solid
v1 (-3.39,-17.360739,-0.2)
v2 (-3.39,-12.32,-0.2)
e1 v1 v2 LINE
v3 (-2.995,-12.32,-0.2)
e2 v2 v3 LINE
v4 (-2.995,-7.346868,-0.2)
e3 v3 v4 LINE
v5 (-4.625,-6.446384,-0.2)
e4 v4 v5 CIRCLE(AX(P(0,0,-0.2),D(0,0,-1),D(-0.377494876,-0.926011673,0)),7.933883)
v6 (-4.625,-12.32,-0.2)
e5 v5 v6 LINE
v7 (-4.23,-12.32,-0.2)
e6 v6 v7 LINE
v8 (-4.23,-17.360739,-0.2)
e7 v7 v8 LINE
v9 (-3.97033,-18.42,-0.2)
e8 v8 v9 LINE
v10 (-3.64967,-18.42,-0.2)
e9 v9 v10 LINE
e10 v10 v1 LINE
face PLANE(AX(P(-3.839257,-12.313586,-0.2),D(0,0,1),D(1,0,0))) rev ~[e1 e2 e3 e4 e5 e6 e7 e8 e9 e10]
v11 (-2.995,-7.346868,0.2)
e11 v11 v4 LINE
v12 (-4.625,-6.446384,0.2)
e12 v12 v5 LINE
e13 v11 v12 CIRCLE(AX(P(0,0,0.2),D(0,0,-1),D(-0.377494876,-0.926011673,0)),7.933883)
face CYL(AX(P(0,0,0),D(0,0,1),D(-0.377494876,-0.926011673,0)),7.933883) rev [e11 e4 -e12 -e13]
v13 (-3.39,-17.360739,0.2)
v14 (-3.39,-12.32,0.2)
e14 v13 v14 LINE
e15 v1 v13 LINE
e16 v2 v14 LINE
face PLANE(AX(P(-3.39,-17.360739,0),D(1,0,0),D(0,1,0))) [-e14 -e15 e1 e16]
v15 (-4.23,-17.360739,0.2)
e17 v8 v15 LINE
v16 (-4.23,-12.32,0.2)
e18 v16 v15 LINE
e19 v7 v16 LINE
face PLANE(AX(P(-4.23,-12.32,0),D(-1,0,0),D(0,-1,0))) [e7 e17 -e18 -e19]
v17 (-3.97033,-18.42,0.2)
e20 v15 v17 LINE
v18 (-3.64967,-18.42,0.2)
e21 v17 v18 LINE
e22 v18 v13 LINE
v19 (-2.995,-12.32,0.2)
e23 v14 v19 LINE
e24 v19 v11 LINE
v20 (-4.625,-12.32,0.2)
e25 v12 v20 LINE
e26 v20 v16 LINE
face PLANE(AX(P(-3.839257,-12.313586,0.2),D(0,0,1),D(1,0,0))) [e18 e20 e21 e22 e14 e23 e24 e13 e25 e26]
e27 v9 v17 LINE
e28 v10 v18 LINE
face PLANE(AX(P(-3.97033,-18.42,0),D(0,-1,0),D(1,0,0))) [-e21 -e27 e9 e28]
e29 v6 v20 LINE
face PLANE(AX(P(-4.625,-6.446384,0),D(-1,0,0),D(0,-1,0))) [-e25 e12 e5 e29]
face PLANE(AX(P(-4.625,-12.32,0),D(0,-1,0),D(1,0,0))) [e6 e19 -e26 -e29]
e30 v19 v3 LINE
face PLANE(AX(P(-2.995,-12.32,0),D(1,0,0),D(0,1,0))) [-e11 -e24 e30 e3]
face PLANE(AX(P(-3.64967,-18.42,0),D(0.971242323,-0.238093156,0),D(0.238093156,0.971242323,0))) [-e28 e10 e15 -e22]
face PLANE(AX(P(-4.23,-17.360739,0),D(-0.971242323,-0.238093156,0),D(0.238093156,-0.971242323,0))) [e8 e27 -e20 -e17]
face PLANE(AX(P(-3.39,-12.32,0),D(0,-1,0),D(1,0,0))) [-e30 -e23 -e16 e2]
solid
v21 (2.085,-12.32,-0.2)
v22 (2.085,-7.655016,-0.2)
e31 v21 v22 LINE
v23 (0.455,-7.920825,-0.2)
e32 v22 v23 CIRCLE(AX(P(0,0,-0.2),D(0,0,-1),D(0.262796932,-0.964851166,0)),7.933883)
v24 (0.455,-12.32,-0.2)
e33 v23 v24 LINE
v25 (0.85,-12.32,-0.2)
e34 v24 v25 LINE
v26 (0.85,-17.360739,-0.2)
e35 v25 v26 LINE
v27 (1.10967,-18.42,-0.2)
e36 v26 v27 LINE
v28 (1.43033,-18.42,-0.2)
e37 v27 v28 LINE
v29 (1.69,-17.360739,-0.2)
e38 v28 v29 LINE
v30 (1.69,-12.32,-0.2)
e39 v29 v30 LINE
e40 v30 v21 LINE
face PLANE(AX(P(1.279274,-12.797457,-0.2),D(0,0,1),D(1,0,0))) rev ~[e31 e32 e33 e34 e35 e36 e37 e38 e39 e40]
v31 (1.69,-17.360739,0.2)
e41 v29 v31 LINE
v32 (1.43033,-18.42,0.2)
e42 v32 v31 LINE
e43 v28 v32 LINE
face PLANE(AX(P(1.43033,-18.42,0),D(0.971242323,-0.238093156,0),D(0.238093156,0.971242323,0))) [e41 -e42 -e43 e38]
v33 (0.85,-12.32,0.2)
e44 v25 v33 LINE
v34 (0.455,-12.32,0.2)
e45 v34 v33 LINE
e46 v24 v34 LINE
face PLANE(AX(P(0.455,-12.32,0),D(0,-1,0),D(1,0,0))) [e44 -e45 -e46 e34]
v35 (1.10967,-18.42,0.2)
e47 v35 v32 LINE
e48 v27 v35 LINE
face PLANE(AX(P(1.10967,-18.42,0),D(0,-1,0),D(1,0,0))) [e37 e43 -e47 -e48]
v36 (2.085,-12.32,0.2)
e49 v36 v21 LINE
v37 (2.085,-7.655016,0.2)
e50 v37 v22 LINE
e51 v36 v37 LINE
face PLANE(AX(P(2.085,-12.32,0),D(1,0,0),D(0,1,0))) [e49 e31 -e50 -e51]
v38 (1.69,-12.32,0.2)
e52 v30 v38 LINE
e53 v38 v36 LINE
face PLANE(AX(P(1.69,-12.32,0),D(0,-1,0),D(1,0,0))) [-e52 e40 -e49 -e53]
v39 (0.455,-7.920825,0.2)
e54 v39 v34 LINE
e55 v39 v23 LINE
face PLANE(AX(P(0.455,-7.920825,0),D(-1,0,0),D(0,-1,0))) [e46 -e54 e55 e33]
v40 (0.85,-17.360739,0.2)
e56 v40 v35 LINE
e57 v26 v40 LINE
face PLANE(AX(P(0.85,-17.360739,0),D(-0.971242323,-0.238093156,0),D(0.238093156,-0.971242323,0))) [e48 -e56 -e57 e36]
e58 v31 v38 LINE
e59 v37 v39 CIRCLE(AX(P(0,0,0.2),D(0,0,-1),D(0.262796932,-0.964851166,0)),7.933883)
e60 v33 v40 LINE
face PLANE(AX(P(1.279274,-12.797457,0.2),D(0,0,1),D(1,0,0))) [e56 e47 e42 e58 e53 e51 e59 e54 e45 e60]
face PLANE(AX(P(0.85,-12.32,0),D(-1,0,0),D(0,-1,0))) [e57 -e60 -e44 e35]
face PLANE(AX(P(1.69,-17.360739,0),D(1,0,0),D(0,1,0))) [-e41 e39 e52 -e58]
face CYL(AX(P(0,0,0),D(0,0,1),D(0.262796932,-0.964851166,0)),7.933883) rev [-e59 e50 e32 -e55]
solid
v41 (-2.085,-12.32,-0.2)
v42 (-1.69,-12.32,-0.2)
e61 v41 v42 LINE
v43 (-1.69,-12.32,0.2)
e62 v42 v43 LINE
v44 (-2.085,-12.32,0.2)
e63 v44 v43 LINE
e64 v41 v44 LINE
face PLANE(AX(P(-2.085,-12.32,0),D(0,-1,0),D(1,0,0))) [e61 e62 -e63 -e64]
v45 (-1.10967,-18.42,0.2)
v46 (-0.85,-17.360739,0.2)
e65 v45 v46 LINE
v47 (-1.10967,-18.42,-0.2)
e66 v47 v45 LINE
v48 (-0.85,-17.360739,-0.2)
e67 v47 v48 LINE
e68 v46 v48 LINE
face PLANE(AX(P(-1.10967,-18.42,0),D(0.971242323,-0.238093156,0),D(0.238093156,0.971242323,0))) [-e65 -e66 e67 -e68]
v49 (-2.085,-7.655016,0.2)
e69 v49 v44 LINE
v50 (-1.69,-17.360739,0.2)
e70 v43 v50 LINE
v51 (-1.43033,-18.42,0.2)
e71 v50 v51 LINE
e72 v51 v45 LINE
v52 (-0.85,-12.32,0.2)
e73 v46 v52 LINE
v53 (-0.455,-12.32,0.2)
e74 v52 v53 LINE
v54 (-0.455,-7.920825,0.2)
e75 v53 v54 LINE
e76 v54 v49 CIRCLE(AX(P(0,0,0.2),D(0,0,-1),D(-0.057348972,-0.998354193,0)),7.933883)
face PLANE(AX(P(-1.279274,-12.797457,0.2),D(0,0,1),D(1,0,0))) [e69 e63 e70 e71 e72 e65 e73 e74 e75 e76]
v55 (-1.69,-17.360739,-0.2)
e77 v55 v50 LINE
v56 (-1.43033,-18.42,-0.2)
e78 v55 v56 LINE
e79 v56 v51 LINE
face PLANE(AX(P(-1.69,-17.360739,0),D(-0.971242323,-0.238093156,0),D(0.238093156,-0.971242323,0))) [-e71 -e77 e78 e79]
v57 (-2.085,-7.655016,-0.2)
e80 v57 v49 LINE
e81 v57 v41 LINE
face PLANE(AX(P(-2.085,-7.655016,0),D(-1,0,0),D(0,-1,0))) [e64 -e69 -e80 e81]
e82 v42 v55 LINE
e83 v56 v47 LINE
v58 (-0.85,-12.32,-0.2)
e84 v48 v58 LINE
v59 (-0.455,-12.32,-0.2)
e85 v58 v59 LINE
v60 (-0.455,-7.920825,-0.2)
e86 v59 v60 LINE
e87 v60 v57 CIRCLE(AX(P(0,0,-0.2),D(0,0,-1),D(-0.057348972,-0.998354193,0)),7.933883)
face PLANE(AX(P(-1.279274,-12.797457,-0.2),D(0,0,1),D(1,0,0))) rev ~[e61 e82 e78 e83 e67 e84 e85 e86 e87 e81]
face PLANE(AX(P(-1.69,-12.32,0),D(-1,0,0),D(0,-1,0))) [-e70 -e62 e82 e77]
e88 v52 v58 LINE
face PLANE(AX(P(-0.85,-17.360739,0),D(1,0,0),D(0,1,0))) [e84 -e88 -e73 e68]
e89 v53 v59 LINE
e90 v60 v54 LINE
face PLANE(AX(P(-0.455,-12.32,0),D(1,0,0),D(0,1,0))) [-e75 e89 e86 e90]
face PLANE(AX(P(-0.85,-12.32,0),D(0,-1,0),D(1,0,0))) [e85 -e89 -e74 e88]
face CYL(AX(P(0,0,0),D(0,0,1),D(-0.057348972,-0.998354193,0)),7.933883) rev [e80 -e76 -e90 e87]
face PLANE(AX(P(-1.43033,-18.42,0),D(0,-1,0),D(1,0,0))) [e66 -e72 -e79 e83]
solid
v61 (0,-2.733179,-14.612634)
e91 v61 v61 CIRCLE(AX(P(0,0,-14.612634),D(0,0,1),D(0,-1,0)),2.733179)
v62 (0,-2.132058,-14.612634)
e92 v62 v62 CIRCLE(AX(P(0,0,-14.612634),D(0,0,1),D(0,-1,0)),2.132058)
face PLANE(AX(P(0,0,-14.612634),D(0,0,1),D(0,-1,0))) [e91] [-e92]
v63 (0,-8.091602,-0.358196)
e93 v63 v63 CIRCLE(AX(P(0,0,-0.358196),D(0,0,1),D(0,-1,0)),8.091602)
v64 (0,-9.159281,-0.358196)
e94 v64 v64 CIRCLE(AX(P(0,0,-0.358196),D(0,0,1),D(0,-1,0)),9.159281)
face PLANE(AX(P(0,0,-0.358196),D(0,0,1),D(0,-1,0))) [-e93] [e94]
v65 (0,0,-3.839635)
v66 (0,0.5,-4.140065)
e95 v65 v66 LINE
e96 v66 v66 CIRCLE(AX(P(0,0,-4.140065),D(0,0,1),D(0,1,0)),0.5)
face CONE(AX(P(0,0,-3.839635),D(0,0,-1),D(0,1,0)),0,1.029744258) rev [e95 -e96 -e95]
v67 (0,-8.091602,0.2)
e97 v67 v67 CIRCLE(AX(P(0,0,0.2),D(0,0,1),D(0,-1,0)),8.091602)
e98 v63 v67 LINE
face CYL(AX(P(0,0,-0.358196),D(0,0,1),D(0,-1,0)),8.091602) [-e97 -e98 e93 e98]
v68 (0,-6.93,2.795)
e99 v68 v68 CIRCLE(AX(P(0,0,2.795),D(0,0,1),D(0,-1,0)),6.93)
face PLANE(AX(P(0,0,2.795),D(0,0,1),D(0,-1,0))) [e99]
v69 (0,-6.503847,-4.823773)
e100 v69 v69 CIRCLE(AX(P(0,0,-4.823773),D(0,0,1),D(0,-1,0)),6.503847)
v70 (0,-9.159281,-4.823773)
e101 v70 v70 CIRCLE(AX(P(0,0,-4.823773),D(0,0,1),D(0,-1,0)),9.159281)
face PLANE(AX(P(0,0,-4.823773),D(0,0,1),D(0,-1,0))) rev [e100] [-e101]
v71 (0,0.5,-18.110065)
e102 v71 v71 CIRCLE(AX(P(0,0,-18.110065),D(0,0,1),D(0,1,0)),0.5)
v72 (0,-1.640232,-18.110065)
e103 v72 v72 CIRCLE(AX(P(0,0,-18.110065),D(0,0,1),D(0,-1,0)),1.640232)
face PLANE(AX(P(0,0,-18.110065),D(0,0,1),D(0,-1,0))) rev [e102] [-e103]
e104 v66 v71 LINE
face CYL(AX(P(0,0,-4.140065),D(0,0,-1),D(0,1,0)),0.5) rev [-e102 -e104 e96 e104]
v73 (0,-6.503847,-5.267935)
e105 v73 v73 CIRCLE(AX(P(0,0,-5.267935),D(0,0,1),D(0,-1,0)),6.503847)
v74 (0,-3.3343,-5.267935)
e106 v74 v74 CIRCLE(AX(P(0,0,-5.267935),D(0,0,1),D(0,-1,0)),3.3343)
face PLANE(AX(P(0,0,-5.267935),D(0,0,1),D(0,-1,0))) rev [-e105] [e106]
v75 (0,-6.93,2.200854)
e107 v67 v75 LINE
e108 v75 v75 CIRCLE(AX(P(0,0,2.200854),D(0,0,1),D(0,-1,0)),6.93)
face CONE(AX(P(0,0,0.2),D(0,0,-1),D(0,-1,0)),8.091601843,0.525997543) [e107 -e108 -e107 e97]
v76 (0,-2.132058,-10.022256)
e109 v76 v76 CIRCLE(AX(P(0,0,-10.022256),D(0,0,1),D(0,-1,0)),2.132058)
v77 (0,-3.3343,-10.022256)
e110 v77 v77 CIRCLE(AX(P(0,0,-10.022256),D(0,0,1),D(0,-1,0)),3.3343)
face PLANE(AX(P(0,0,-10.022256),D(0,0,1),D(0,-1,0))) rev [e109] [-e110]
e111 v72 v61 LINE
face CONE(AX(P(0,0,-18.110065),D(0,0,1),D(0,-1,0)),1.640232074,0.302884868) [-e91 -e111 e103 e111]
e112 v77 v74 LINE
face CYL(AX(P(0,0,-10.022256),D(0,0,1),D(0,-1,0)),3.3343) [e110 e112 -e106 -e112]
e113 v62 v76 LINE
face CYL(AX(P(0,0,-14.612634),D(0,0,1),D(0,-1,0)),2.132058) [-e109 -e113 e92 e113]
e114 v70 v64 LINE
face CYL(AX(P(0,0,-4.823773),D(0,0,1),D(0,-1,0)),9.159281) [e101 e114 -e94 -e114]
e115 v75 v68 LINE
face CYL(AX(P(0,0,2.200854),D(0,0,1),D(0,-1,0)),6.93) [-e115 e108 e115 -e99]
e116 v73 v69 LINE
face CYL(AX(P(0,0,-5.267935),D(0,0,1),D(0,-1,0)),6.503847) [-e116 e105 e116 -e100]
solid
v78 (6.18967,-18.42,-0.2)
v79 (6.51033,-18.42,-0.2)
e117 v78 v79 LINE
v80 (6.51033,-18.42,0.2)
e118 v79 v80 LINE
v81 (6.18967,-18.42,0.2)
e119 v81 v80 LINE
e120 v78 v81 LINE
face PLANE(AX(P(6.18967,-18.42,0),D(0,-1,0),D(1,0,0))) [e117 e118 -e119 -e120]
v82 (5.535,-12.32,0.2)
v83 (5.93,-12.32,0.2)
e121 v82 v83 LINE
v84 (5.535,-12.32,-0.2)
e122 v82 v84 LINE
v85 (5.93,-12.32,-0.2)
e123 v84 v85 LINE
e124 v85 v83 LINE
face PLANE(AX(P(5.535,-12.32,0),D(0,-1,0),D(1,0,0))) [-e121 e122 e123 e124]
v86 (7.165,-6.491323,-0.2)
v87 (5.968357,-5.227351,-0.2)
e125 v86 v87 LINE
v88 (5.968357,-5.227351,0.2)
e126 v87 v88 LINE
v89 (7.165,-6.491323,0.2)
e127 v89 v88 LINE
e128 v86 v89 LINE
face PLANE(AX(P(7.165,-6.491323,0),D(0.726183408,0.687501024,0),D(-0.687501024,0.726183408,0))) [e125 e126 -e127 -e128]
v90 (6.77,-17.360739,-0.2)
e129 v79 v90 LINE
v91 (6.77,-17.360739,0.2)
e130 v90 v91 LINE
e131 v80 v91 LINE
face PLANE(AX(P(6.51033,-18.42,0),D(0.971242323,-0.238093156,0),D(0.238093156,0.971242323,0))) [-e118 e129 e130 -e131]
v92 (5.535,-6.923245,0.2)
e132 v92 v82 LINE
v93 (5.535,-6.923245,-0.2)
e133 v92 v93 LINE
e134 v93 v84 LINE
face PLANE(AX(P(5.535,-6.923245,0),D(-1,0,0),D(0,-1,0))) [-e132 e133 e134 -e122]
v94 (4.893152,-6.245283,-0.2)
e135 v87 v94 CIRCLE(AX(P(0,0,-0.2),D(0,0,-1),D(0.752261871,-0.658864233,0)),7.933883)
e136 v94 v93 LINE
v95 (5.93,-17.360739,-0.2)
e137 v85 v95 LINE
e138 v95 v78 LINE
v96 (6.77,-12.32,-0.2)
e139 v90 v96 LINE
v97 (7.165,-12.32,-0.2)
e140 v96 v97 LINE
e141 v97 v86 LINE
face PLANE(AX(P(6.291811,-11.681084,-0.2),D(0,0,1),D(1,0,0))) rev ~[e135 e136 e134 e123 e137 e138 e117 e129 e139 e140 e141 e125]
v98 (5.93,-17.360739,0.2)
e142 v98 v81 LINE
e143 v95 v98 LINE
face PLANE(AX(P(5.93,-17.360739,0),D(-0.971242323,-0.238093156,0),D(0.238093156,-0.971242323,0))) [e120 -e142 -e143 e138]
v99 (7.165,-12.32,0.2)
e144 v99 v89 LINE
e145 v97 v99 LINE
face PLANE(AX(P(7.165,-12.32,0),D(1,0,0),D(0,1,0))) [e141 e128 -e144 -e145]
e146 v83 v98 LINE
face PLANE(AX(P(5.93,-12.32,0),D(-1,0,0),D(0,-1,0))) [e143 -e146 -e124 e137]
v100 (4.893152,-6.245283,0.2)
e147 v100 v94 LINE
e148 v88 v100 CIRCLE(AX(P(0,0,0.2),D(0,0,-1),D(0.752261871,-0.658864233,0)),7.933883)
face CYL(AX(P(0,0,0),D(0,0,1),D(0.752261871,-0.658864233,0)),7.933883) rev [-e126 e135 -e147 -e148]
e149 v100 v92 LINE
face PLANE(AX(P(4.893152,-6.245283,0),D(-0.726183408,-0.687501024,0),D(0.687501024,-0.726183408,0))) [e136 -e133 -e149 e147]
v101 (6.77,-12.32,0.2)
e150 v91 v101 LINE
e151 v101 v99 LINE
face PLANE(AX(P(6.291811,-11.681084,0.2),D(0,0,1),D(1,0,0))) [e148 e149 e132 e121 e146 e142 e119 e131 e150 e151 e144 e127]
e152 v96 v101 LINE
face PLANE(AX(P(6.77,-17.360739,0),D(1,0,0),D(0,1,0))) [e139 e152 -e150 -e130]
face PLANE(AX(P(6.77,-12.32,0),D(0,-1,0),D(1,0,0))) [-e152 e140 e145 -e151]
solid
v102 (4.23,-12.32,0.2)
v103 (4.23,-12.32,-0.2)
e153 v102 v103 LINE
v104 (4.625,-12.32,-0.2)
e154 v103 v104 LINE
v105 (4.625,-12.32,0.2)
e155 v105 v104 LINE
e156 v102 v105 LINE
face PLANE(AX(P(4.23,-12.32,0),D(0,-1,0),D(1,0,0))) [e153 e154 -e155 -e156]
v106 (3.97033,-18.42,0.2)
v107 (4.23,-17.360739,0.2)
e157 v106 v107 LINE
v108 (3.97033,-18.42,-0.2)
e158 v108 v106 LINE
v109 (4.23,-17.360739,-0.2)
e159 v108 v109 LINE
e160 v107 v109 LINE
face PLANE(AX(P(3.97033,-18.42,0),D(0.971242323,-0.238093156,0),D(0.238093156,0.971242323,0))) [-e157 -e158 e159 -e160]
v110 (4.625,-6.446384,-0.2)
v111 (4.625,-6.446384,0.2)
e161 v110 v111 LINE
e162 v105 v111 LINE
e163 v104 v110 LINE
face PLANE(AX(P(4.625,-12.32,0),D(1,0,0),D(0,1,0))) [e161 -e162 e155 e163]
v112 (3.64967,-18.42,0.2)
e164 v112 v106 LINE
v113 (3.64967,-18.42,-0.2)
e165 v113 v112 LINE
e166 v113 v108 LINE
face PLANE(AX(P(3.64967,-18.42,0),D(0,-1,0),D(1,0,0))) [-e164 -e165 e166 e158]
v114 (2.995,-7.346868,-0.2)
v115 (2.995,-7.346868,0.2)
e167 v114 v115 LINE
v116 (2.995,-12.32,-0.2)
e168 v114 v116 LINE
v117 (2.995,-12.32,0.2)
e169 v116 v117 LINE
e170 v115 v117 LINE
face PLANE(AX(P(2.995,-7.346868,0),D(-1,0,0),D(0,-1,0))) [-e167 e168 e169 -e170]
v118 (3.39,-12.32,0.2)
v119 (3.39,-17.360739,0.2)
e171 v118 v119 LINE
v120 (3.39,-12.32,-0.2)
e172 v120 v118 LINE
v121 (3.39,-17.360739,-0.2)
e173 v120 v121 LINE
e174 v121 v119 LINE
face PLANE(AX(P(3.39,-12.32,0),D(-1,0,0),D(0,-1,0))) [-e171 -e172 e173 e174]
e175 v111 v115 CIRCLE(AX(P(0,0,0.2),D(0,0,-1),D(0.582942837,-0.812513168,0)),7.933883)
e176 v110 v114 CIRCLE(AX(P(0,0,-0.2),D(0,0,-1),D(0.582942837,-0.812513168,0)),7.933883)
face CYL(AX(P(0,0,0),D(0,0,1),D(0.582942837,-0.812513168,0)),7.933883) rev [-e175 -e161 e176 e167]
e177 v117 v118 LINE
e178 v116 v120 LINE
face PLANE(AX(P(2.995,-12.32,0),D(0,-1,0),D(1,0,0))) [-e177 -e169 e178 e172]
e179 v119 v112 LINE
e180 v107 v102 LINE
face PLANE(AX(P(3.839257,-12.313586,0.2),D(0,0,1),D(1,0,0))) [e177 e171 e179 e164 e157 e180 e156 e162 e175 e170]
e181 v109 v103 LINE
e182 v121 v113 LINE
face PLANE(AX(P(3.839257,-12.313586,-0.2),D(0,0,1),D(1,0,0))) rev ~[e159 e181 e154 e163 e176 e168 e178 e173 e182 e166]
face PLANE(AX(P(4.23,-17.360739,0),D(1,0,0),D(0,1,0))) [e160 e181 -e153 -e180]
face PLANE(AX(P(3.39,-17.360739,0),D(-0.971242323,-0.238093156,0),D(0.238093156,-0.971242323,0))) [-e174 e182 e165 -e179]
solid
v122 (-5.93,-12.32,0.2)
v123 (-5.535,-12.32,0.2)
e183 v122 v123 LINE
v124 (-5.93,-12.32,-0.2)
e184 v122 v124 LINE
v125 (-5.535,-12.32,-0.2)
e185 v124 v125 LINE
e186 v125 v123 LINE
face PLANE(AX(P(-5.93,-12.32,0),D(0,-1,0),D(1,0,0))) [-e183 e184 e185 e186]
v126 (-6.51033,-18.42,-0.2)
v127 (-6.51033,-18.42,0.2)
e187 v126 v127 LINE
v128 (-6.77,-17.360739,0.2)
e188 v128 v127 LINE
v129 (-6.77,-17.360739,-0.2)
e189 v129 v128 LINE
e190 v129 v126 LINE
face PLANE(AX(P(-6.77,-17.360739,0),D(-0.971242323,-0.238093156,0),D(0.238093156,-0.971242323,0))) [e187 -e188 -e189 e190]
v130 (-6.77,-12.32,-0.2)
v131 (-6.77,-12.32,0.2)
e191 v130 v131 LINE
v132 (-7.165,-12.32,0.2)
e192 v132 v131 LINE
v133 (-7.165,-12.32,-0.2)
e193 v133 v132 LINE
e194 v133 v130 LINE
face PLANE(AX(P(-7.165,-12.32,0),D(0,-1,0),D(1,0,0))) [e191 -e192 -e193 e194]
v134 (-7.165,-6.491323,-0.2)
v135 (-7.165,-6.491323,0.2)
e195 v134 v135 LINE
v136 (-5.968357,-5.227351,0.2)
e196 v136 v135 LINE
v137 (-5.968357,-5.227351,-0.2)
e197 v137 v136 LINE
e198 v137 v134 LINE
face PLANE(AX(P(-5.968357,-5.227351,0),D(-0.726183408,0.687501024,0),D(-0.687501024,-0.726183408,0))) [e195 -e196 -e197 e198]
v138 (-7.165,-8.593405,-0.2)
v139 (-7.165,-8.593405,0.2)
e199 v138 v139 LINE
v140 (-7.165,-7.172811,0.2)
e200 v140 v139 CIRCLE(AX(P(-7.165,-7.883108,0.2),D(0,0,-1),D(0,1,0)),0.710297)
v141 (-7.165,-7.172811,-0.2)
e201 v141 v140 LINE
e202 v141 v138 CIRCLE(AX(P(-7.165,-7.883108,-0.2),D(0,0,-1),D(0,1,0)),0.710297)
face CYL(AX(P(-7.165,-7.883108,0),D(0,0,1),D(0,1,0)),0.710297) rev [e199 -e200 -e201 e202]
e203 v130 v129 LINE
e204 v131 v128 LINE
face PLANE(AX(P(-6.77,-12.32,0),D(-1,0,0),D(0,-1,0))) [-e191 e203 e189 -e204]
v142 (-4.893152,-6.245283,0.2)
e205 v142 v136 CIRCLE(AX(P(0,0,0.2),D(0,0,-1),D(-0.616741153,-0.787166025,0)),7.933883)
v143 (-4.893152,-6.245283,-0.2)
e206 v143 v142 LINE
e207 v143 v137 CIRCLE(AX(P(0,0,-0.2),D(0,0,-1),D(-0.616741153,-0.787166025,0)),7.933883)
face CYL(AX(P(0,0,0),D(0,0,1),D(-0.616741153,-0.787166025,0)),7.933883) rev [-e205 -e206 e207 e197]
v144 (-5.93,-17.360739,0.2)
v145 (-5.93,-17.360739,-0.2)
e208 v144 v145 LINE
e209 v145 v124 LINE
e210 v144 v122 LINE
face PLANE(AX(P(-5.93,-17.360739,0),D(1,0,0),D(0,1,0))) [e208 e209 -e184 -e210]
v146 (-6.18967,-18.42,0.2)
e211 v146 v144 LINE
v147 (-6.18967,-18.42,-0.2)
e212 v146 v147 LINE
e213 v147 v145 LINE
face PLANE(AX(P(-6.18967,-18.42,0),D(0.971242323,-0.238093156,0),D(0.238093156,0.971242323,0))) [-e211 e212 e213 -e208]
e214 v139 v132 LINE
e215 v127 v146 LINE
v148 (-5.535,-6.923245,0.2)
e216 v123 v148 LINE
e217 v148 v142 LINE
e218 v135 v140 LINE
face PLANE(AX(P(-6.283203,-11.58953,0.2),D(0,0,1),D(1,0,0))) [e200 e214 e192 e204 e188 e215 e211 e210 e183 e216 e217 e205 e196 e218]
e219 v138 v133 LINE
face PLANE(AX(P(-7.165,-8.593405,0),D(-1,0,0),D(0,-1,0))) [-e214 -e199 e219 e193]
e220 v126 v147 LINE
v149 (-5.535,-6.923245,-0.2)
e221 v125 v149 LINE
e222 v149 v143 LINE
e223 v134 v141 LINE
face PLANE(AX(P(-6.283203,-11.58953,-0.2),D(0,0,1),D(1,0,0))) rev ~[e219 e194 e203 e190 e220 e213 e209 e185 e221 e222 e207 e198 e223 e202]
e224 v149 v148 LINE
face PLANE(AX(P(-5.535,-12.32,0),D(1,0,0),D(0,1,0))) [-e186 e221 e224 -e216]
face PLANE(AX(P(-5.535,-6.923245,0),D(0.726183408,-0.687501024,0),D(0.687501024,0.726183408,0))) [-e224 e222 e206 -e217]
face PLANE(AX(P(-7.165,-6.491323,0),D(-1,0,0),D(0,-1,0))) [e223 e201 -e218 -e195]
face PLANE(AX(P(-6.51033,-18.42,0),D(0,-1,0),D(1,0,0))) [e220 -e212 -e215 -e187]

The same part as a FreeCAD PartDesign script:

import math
import FreeCAD as App
import Part
import Sketcher
Q = App.Units.Quantity


def add_polygon(sketch, points):
    """Adds a closed chain of lines whose ends are joined by coincident constraints."""
    first, n = sketch.GeometryCount, len(points)
    for a, b in zip(points, points[1:] + points[:1]):
        sketch.addGeometry(Part.LineSegment(App.Vector(*a, 0), App.Vector(*b, 0)), False)
    for i in range(n):
        sketch.addConstraint(Sketcher.Constraint("Coincident", first + i, 2, first + (i + 1) % n, 1))

doc = App.newDocument("Part")
body = doc.addObject("PartDesign::Body", "Body")

sketch1 = doc.addObject("Sketcher::SketchObject", "Sketch")
body.addObject(sketch1)
sketch1.AttachmentSupport = (doc.XY_Plane, [""])
sketch1.MapMode = "FlatFace"
sketch1.addGeometry(Part.LineSegment(App.Vector(-5.93, -12.32, 0), App.Vector(-5.54, -12.32, 0)), False)
sketch1.addGeometry(Part.LineSegment(App.Vector(-5.54, -12.32, 0), App.Vector(-5.54, -6.92, 0)), False)
sketch1.addGeometry(Part.LineSegment(App.Vector(-5.54, -6.92, 0), App.Vector(-4.89, -6.25, 0)), False)
sketch1.addGeometry(Part.ArcOfCircle(Part.Circle(App.Vector(0, 0, 0), App.Vector(0, 0, 1), 7.93), math.radians(-138.79), math.radians(-128.08)), False)
sketch1.addGeometry(Part.LineSegment(App.Vector(-5.97, -5.23, 0), App.Vector(-7.17, -6.49, 0)), False)
sketch1.addGeometry(Part.LineSegment(App.Vector(-7.17, -6.49, 0), App.Vector(-7.17, -7.17, 0)), False)
sketch1.addGeometry(Part.ArcOfCircle(Part.Circle(App.Vector(-7.17, -7.88, 0), App.Vector(0, 0, 1), 0.71), math.radians(-90), math.radians(90)), False)
sketch1.addGeometry(Part.LineSegment(App.Vector(-7.17, -8.59, 0), App.Vector(-7.17, -12.32, 0)), False)
sketch1.addGeometry(Part.LineSegment(App.Vector(-7.17, -12.32, 0), App.Vector(-6.77, -12.32, 0)), False)
sketch1.addGeometry(Part.LineSegment(App.Vector(-6.77, -12.32, 0), App.Vector(-6.77, -17.36, 0)), False)
sketch1.addGeometry(Part.LineSegment(App.Vector(-6.77, -17.36, 0), App.Vector(-6.51, -18.42, 0)), False)
sketch1.addGeometry(Part.LineSegment(App.Vector(-6.51, -18.42, 0), App.Vector(-6.19, -18.42, 0)), False)
sketch1.addGeometry(Part.LineSegment(App.Vector(-6.19, -18.42, 0), App.Vector(-5.93, -17.36, 0)), False)
sketch1.addGeometry(Part.LineSegment(App.Vector(-5.93, -17.36, 0), App.Vector(-5.93, -12.32, 0)), False)
sketch1.addConstraint(Sketcher.Constraint("Coincident", 0, 2, 1, 1))
sketch1.addConstraint(Sketcher.Constraint("Coincident", 1, 2, 2, 1))
sketch1.addConstraint(Sketcher.Constraint("Coincident", 2, 2, 3, 2))
sketch1.addConstraint(Sketcher.Constraint("Coincident", 3, 1, 4, 1))
sketch1.addConstraint(Sketcher.Constraint("Coincident", 4, 2, 5, 1))
sketch1.addConstraint(Sketcher.Constraint("Coincident", 5, 2, 6, 2))
sketch1.addConstraint(Sketcher.Constraint("Coincident", 6, 1, 7, 1))
sketch1.addConstraint(Sketcher.Constraint("Coincident", 7, 2, 8, 1))
sketch1.addConstraint(Sketcher.Constraint("Coincident", 8, 2, 9, 1))
sketch1.addConstraint(Sketcher.Constraint("Coincident", 9, 2, 10, 1))
sketch1.addConstraint(Sketcher.Constraint("Coincident", 10, 2, 11, 1))
sketch1.addConstraint(Sketcher.Constraint("Coincident", 11, 2, 12, 1))
sketch1.addConstraint(Sketcher.Constraint("Coincident", 12, 2, 13, 1))
sketch1.addConstraint(Sketcher.Constraint("Coincident", 13, 2, 0, 1))
sketch1.addConstraint(Sketcher.Constraint("Horizontal", 0))
sketch1.addConstraint(Sketcher.Constraint("Vertical", 1))
sketch1.addConstraint(Sketcher.Constraint("Vertical", 5))
sketch1.addConstraint(Sketcher.Constraint("Vertical", 7))
sketch1.addConstraint(Sketcher.Constraint("Horizontal", 8))
sketch1.addConstraint(Sketcher.Constraint("Vertical", 9))
sketch1.addConstraint(Sketcher.Constraint("Horizontal", 11))
sketch1.addConstraint(Sketcher.Constraint("Vertical", 13))
sketch1.addConstraint(Sketcher.Constraint("Coincident", 3, 3, -1, 1))
sketch1.addConstraint(Sketcher.Constraint("Parallel", 2, 4))
sketch1.addConstraint(Sketcher.Constraint("Horizontal", 0, 2, 7, 2))
sketch1.addConstraint(Sketcher.Constraint("Horizontal", 9, 2, 12, 2))
sketch1.addConstraint(Sketcher.Constraint("Vertical", 6, 3, 4, 2))
sketch1.addConstraint(Sketcher.Constraint("Vertical", 5, 2, 6, 1))
sketch1.addConstraint(Sketcher.Constraint("Equal", 0, 8))
sketch1.addConstraint(Sketcher.Constraint("Equal", 10, 12))
sketch1.addConstraint(Sketcher.Constraint("DistanceY", 10, 2, 8, 2, Q("6.1 mm")))
sketch1.addConstraint(Sketcher.Constraint("DistanceX", 0, 1, 0, 2, Q("0.395 mm")))
sketch1.addConstraint(Sketcher.Constraint("DistanceY", 0, 2, -1, 1, Q("12.32 mm")))
sketch1.addConstraint(Sketcher.Constraint("DistanceX", 8, 2, -1, 1, Q("6.77 mm")))
sketch1.addConstraint(Sketcher.Constraint("DistanceX", 12, 2, -1, 1, Q("5.93 mm")))
sketch1.addConstraint(Sketcher.Constraint("Radius", 3, Q("7.933883 mm")))
sketch1.addConstraint(Sketcher.Constraint("Radius", 6, Q("0.710297 mm")))
sketch1.addConstraint(Sketcher.Constraint("DistanceX", 11, 1, 11, 2, Q("0.320659 mm")))
sketch1.addConstraint(Sketcher.Constraint("DistanceY", 9, 2, 9, 1, Q("5.040739 mm")))
sketch1.addConstraint(Sketcher.Constraint("Distance", 4, Q("1.740569 mm")))
sketch1.addConstraint(Sketcher.Constraint("DistanceY", 1, 1, 1, 2, Q("5.396755 mm")))
sketch1.addConstraint(Sketcher.Constraint("DistanceY", 5, 2, 5, 1, Q("0.681488 mm")))
sketch1.addConstraint(Sketcher.Constraint("DistanceY", 7, 2, 7, 1, Q("3.726595 mm")))
pad1 = doc.addObject("PartDesign::Pad", "Pad")
body.addObject(pad1)
pad1.Profile = sketch1
pad1.Type = "TwoLengths"
pad1.Length = 0.2
pad1.Length2 = 0.2
body2 = doc.addObject("PartDesign::Body", "Body001")

sketch2 = doc.addObject("Sketcher::SketchObject", "Sketch001")
body2.addObject(sketch2)
sketch2.AttachmentSupport = (doc.getObject("XY_Plane001"), [""])
sketch2.MapMode = "FlatFace"
sketch2.addGeometry(Part.LineSegment(App.Vector(-4.62, -6.45, 0), App.Vector(-4.62, -12.32, 0)), False)
sketch2.addGeometry(Part.LineSegment(App.Vector(-4.62, -12.32, 0), App.Vector(-4.23, -12.32, 0)), False)
sketch2.addGeometry(Part.LineSegment(App.Vector(-4.23, -12.32, 0), App.Vector(-4.23, -17.36, 0)), False)
sketch2.addGeometry(Part.LineSegment(App.Vector(-4.23, -17.36, 0), App.Vector(-3.97, -18.42, 0)), False)
sketch2.addGeometry(Part.LineSegment(App.Vector(-3.97, -18.42, 0), App.Vector(-3.65, -18.42, 0)), False)
sketch2.addGeometry(Part.LineSegment(App.Vector(-3.65, -18.42, 0), App.Vector(-3.39, -17.36, 0)), False)
sketch2.addGeometry(Part.LineSegment(App.Vector(-3.39, -17.36, 0), App.Vector(-3.39, -12.32, 0)), False)
sketch2.addGeometry(Part.LineSegment(App.Vector(-3.39, -12.32, 0), App.Vector(-3, -12.32, 0)), False)
sketch2.addGeometry(Part.LineSegment(App.Vector(-3, -12.32, 0), App.Vector(-3, -7.35, 0)), False)
sketch2.addGeometry(Part.ArcOfCircle(Part.Circle(App.Vector(0, 0, 0), App.Vector(0, 0, 1), 7.93), math.radians(-125.66), math.radians(-112.18)), False)
sketch2.addConstraint(Sketcher.Constraint("Coincident", 0, 2, 1, 1))
sketch2.addConstraint(Sketcher.Constraint("Coincident", 1, 2, 2, 1))
sketch2.addConstraint(Sketcher.Constraint("Coincident", 2, 2, 3, 1))
sketch2.addConstraint(Sketcher.Constraint("Coincident", 3, 2, 4, 1))
sketch2.addConstraint(Sketcher.Constraint("Coincident", 4, 2, 5, 1))
sketch2.addConstraint(Sketcher.Constraint("Coincident", 5, 2, 6, 1))
sketch2.addConstraint(Sketcher.Constraint("Coincident", 6, 2, 7, 1))
sketch2.addConstraint(Sketcher.Constraint("Coincident", 7, 2, 8, 1))
sketch2.addConstraint(Sketcher.Constraint("Coincident", 8, 2, 9, 2))
sketch2.addConstraint(Sketcher.Constraint("Coincident", 9, 1, 0, 1))
sketch2.addConstraint(Sketcher.Constraint("Vertical", 0))
sketch2.addConstraint(Sketcher.Constraint("Horizontal", 1))
sketch2.addConstraint(Sketcher.Constraint("Vertical", 2))
sketch2.addConstraint(Sketcher.Constraint("Horizontal", 4))
sketch2.addConstraint(Sketcher.Constraint("Vertical", 6))
sketch2.addConstraint(Sketcher.Constraint("Horizontal", 7))
sketch2.addConstraint(Sketcher.Constraint("Vertical", 8))
sketch2.addConstraint(Sketcher.Constraint("Coincident", 9, 3, -1, 1))
sketch2.addConstraint(Sketcher.Constraint("Horizontal", 2, 2, 5, 2))
sketch2.addConstraint(Sketcher.Constraint("Horizontal", 1, 2, 6, 2))
sketch2.addConstraint(Sketcher.Constraint("Equal", 1, 7))
sketch2.addConstraint(Sketcher.Constraint("Equal", 3, 5))
sketch2.addConstraint(Sketcher.Constraint("DistanceY", 3, 2, 1, 2, Q("6.1 mm")))
sketch2.addConstraint(Sketcher.Constraint("DistanceX", 1, 1, 1, 2, Q("0.395 mm")))
sketch2.addConstraint(Sketcher.Constraint("DistanceY", 0, 2, -1, 1, Q("12.32 mm")))
sketch2.addConstraint(Sketcher.Constraint("DistanceX", 1, 2, -1, 1, Q("4.23 mm")))
sketch2.addConstraint(Sketcher.Constraint("DistanceX", 5, 2, -1, 1, Q("3.39 mm")))
sketch2.addConstraint(Sketcher.Constraint("Radius", 9, Q("7.933883 mm")))
sketch2.addConstraint(Sketcher.Constraint("DistanceX", 4, 1, 4, 2, Q("0.320659 mm")))
sketch2.addConstraint(Sketcher.Constraint("DistanceY", 2, 2, 2, 1, Q("5.040739 mm")))
pad2 = doc.addObject("PartDesign::Pad", "Pad001")
body2.addObject(pad2)
pad2.Profile = sketch2
pad2.Type = "TwoLengths"
pad2.Length = 0.2
pad2.Length2 = 0.2
body3 = doc.addObject("PartDesign::Body", "Body002")

sketch3 = doc.addObject("Sketcher::SketchObject", "Sketch002")
body3.addObject(sketch3)
sketch3.AttachmentSupport = (doc.getObject("XY_Plane002"), [""])
sketch3.MapMode = "FlatFace"
sketch3.addGeometry(Part.LineSegment(App.Vector(-0.46, -12.32, 0), App.Vector(-0.46, -7.92, 0)), False)
sketch3.addGeometry(Part.ArcOfCircle(Part.Circle(App.Vector(0, 0, 0), App.Vector(0, 0, 1), 7.93), math.radians(-105.24), math.radians(-93.29)), False)
sketch3.addGeometry(Part.LineSegment(App.Vector(-2.08, -7.66, 0), App.Vector(-2.08, -12.32, 0)), False)
sketch3.addGeometry(Part.LineSegment(App.Vector(-2.08, -12.32, 0), App.Vector(-1.69, -12.32, 0)), False)
sketch3.addGeometry(Part.LineSegment(App.Vector(-1.69, -12.32, 0), App.Vector(-1.69, -17.36, 0)), False)
sketch3.addGeometry(Part.LineSegment(App.Vector(-1.69, -17.36, 0), App.Vector(-1.43, -18.42, 0)), False)
sketch3.addGeometry(Part.LineSegment(App.Vector(-1.43, -18.42, 0), App.Vector(-1.11, -18.42, 0)), False)
sketch3.addGeometry(Part.LineSegment(App.Vector(-1.11, -18.42, 0), App.Vector(-0.85, -17.36, 0)), False)
sketch3.addGeometry(Part.LineSegment(App.Vector(-0.85, -17.36, 0), App.Vector(-0.85, -12.32, 0)), False)
sketch3.addGeometry(Part.LineSegment(App.Vector(-0.85, -12.32, 0), App.Vector(-0.46, -12.32, 0)), False)
sketch3.addConstraint(Sketcher.Constraint("Coincident", 0, 2, 1, 2))
sketch3.addConstraint(Sketcher.Constraint("Coincident", 1, 1, 2, 1))
sketch3.addConstraint(Sketcher.Constraint("Coincident", 2, 2, 3, 1))
sketch3.addConstraint(Sketcher.Constraint("Coincident", 3, 2, 4, 1))
sketch3.addConstraint(Sketcher.Constraint("Coincident", 4, 2, 5, 1))
sketch3.addConstraint(Sketcher.Constraint("Coincident", 5, 2, 6, 1))
sketch3.addConstraint(Sketcher.Constraint("Coincident", 6, 2, 7, 1))
sketch3.addConstraint(Sketcher.Constraint("Coincident", 7, 2, 8, 1))
sketch3.addConstraint(Sketcher.Constraint("Coincident", 8, 2, 9, 1))
sketch3.addConstraint(Sketcher.Constraint("Coincident", 9, 2, 0, 1))
sketch3.addConstraint(Sketcher.Constraint("Vertical", 0))
sketch3.addConstraint(Sketcher.Constraint("Vertical", 2))
sketch3.addConstraint(Sketcher.Constraint("Horizontal", 3))
sketch3.addConstraint(Sketcher.Constraint("Vertical", 4))
sketch3.addConstraint(Sketcher.Constraint("Horizontal", 6))
sketch3.addConstraint(Sketcher.Constraint("Vertical", 8))
sketch3.addConstraint(Sketcher.Constraint("Horizontal", 9))
sketch3.addConstraint(Sketcher.Constraint("Coincident", 1, 3, -1, 1))
sketch3.addConstraint(Sketcher.Constraint("Horizontal", 4, 2, 7, 2))
sketch3.addConstraint(Sketcher.Constraint("Horizontal", 3, 2, 8, 2))
sketch3.addConstraint(Sketcher.Constraint("Equal", 3, 9))
sketch3.addConstraint(Sketcher.Constraint("Equal", 5, 7))
sketch3.addConstraint(Sketcher.Constraint("DistanceY", 5, 2, 3, 2, Q("6.1 mm")))
sketch3.addConstraint(Sketcher.Constraint("DistanceX", 3, 1, 3, 2, Q("0.395 mm")))
sketch3.addConstraint(Sketcher.Constraint("DistanceY", 2, 2, -1, 1, Q("12.32 mm")))
sketch3.addConstraint(Sketcher.Constraint("DistanceX", 3, 2, -1, 1, Q("1.69 mm")))
sketch3.addConstraint(Sketcher.Constraint("DistanceX", 7, 2, -1, 1, Q("0.85 mm")))
sketch3.addConstraint(Sketcher.Constraint("Radius", 1, Q("7.933883 mm")))
sketch3.addConstraint(Sketcher.Constraint("DistanceX", 6, 1, 6, 2, Q("0.320659 mm")))
sketch3.addConstraint(Sketcher.Constraint("DistanceY", 4, 2, 4, 1, Q("5.040739 mm")))
pad3 = doc.addObject("PartDesign::Pad", "Pad002")
body3.addObject(pad3)
pad3.Profile = sketch3
pad3.Type = "TwoLengths"
pad3.Length = 0.2
pad3.Length2 = 0.2
body4 = doc.addObject("PartDesign::Body", "Body003")

sketch4 = doc.addObject("Sketcher::SketchObject", "Sketch003")
body4.addObject(sketch4)
sketch4.AttachmentSupport = (doc.getObject("XY_Plane003"), [""])
sketch4.MapMode = "FlatFace"
sketch4.addGeometry(Part.LineSegment(App.Vector(4.62, -12.32, 0), App.Vector(4.62, -6.45, 0)), False)
sketch4.addGeometry(Part.ArcOfCircle(Part.Circle(App.Vector(0, 0, 0), App.Vector(0, 0, 1), 7.93), math.radians(-67.82), math.radians(-54.34)), False)
sketch4.addGeometry(Part.LineSegment(App.Vector(3, -7.35, 0), App.Vector(3, -12.32, 0)), False)
sketch4.addGeometry(Part.LineSegment(App.Vector(3, -12.32, 0), App.Vector(3.39, -12.32, 0)), False)
sketch4.addGeometry(Part.LineSegment(App.Vector(3.39, -12.32, 0), App.Vector(3.39, -17.36, 0)), False)
sketch4.addGeometry(Part.LineSegment(App.Vector(3.39, -17.36, 0), App.Vector(3.65, -18.42, 0)), False)
sketch4.addGeometry(Part.LineSegment(App.Vector(3.65, -18.42, 0), App.Vector(3.97, -18.42, 0)), False)
sketch4.addGeometry(Part.LineSegment(App.Vector(3.97, -18.42, 0), App.Vector(4.23, -17.36, 0)), False)
sketch4.addGeometry(Part.LineSegment(App.Vector(4.23, -17.36, 0), App.Vector(4.23, -12.32, 0)), False)
sketch4.addGeometry(Part.LineSegment(App.Vector(4.23, -12.32, 0), App.Vector(4.62, -12.32, 0)), False)
sketch4.addConstraint(Sketcher.Constraint("Coincident", 0, 2, 1, 2))
sketch4.addConstraint(Sketcher.Constraint("Coincident", 1, 1, 2, 1))
sketch4.addConstraint(Sketcher.Constraint("Coincident", 2, 2, 3, 1))
sketch4.addConstraint(Sketcher.Constraint("Coincident", 3, 2, 4, 1))
sketch4.addConstraint(Sketcher.Constraint("Coincident", 4, 2, 5, 1))
sketch4.addConstraint(Sketcher.Constraint("Coincident", 5, 2, 6, 1))
sketch4.addConstraint(Sketcher.Constraint("Coincident", 6, 2, 7, 1))
sketch4.addConstraint(Sketcher.Constraint("Coincident", 7, 2, 8, 1))
sketch4.addConstraint(Sketcher.Constraint("Coincident", 8, 2, 9, 1))
sketch4.addConstraint(Sketcher.Constraint("Coincident", 9, 2, 0, 1))
sketch4.addConstraint(Sketcher.Constraint("Vertical", 0))
sketch4.addConstraint(Sketcher.Constraint("Vertical", 2))
sketch4.addConstraint(Sketcher.Constraint("Horizontal", 3))
sketch4.addConstraint(Sketcher.Constraint("Vertical", 4))
sketch4.addConstraint(Sketcher.Constraint("Horizontal", 6))
sketch4.addConstraint(Sketcher.Constraint("Vertical", 8))
sketch4.addConstraint(Sketcher.Constraint("Horizontal", 9))
sketch4.addConstraint(Sketcher.Constraint("Coincident", 1, 3, -1, 1))
sketch4.addConstraint(Sketcher.Constraint("Horizontal", 4, 2, 7, 2))
sketch4.addConstraint(Sketcher.Constraint("Horizontal", 3, 2, 8, 2))
sketch4.addConstraint(Sketcher.Constraint("Equal", 3, 9))
sketch4.addConstraint(Sketcher.Constraint("Equal", 5, 7))
sketch4.addConstraint(Sketcher.Constraint("DistanceY", 5, 2, 3, 2, Q("6.1 mm")))
sketch4.addConstraint(Sketcher.Constraint("DistanceX", 3, 1, 3, 2, Q("0.395 mm")))
sketch4.addConstraint(Sketcher.Constraint("DistanceY", 2, 2, -1, 1, Q("12.32 mm")))
sketch4.addConstraint(Sketcher.Constraint("DistanceX", -1, 1, 3, 2, Q("3.39 mm")))
sketch4.addConstraint(Sketcher.Constraint("DistanceX", -1, 1, 7, 2, Q("4.23 mm")))
sketch4.addConstraint(Sketcher.Constraint("Radius", 1, Q("7.933883 mm")))
sketch4.addConstraint(Sketcher.Constraint("DistanceX", 6, 1, 6, 2, Q("0.320659 mm")))
sketch4.addConstraint(Sketcher.Constraint("DistanceY", 4, 2, 4, 1, Q("5.040739 mm")))
pad4 = doc.addObject("PartDesign::Pad", "Pad003")
body4.addObject(pad4)
pad4.Profile = sketch4
pad4.Type = "TwoLengths"
pad4.Length = 0.2
pad4.Length2 = 0.2
body5 = doc.addObject("PartDesign::Body", "Body004")

sketch5 = doc.addObject("Sketcher::SketchObject", "Sketch004")
body5.addObject(sketch5)
sketch5.AttachmentSupport = (doc.getObject("XY_Plane004"), [""])
sketch5.MapMode = "FlatFace"
sketch5.addGeometry(Part.LineSegment(App.Vector(0.46, -7.92, 0), App.Vector(0.46, -12.32, 0)), False)
sketch5.addGeometry(Part.LineSegment(App.Vector(0.46, -12.32, 0), App.Vector(0.85, -12.32, 0)), False)
sketch5.addGeometry(Part.LineSegment(App.Vector(0.85, -12.32, 0), App.Vector(0.85, -17.36, 0)), False)
sketch5.addGeometry(Part.LineSegment(App.Vector(0.85, -17.36, 0), App.Vector(1.11, -18.42, 0)), False)
sketch5.addGeometry(Part.LineSegment(App.Vector(1.11, -18.42, 0), App.Vector(1.43, -18.42, 0)), False)
sketch5.addGeometry(Part.LineSegment(App.Vector(1.43, -18.42, 0), App.Vector(1.69, -17.36, 0)), False)
sketch5.addGeometry(Part.LineSegment(App.Vector(1.69, -17.36, 0), App.Vector(1.69, -12.32, 0)), False)
sketch5.addGeometry(Part.LineSegment(App.Vector(1.69, -12.32, 0), App.Vector(2.08, -12.32, 0)), False)
sketch5.addGeometry(Part.LineSegment(App.Vector(2.08, -12.32, 0), App.Vector(2.08, -7.66, 0)), False)
sketch5.addGeometry(Part.ArcOfCircle(Part.Circle(App.Vector(0, 0, 0), App.Vector(0, 0, 1), 7.93), math.radians(-86.71), math.radians(-74.76)), False)
sketch5.addConstraint(Sketcher.Constraint("Coincident", 0, 2, 1, 1))
sketch5.addConstraint(Sketcher.Constraint("Coincident", 1, 2, 2, 1))
sketch5.addConstraint(Sketcher.Constraint("Coincident", 2, 2, 3, 1))
sketch5.addConstraint(Sketcher.Constraint("Coincident", 3, 2, 4, 1))
sketch5.addConstraint(Sketcher.Constraint("Coincident", 4, 2, 5, 1))
sketch5.addConstraint(Sketcher.Constraint("Coincident", 5, 2, 6, 1))
sketch5.addConstraint(Sketcher.Constraint("Coincident", 6, 2, 7, 1))
sketch5.addConstraint(Sketcher.Constraint("Coincident", 7, 2, 8, 1))
sketch5.addConstraint(Sketcher.Constraint("Coincident", 8, 2, 9, 2))
sketch5.addConstraint(Sketcher.Constraint("Coincident", 9, 1, 0, 1))
sketch5.addConstraint(Sketcher.Constraint("Vertical", 0))
sketch5.addConstraint(Sketcher.Constraint("Horizontal", 1))
sketch5.addConstraint(Sketcher.Constraint("Vertical", 2))
sketch5.addConstraint(Sketcher.Constraint("Horizontal", 4))
sketch5.addConstraint(Sketcher.Constraint("Vertical", 6))
sketch5.addConstraint(Sketcher.Constraint("Horizontal", 7))
sketch5.addConstraint(Sketcher.Constraint("Vertical", 8))
sketch5.addConstraint(Sketcher.Constraint("Coincident", 9, 3, -1, 1))
sketch5.addConstraint(Sketcher.Constraint("Horizontal", 2, 2, 5, 2))
sketch5.addConstraint(Sketcher.Constraint("Horizontal", 1, 2, 6, 2))
sketch5.addConstraint(Sketcher.Constraint("Equal", 1, 7))
sketch5.addConstraint(Sketcher.Constraint("Equal", 3, 5))
sketch5.addConstraint(Sketcher.Constraint("DistanceY", 3, 2, 1, 2, Q("6.1 mm")))
sketch5.addConstraint(Sketcher.Constraint("DistanceX", 1, 1, 1, 2, Q("0.395 mm")))
sketch5.addConstraint(Sketcher.Constraint("DistanceY", 0, 2, -1, 1, Q("12.32 mm")))
sketch5.addConstraint(Sketcher.Constraint("DistanceX", -1, 1, 1, 2, Q("0.85 mm")))
sketch5.addConstraint(Sketcher.Constraint("DistanceX", -1, 1, 5, 2, Q("1.69 mm")))
sketch5.addConstraint(Sketcher.Constraint("Radius", 9, Q("7.933883 mm")))
sketch5.addConstraint(Sketcher.Constraint("DistanceX", 4, 1, 4, 2, Q("0.320659 mm")))
sketch5.addConstraint(Sketcher.Constraint("DistanceY", 2, 2, 2, 1, Q("5.040739 mm")))
pad5 = doc.addObject("PartDesign::Pad", "Pad004")
body5.addObject(pad5)
pad5.Profile = sketch5
pad5.Type = "TwoLengths"
pad5.Length = 0.2
pad5.Length2 = 0.2
body6 = doc.addObject("PartDesign::Body", "Body005")

sketch6 = doc.addObject("Sketcher::SketchObject", "Sketch005")
body6.addObject(sketch6)
sketch6.AttachmentSupport = (doc.getObject("XY_Plane005"), [""])
sketch6.MapMode = "FlatFace"
sketch6.addGeometry(Part.LineSegment(App.Vector(5.54, -12.32, 0), App.Vector(5.93, -12.32, 0)), False)
sketch6.addGeometry(Part.LineSegment(App.Vector(5.93, -12.32, 0), App.Vector(5.93, -17.36, 0)), False)
sketch6.addGeometry(Part.LineSegment(App.Vector(5.93, -17.36, 0), App.Vector(6.19, -18.42, 0)), False)
sketch6.addGeometry(Part.LineSegment(App.Vector(6.19, -18.42, 0), App.Vector(6.51, -18.42, 0)), False)
sketch6.addGeometry(Part.LineSegment(App.Vector(6.51, -18.42, 0), App.Vector(6.77, -17.36, 0)), False)
sketch6.addGeometry(Part.LineSegment(App.Vector(6.77, -17.36, 0), App.Vector(6.77, -12.32, 0)), False)
sketch6.addGeometry(Part.LineSegment(App.Vector(6.77, -12.32, 0), App.Vector(7.17, -12.32, 0)), False)
sketch6.addGeometry(Part.LineSegment(App.Vector(7.17, -12.32, 0), App.Vector(7.17, -6.49, 0)), False)
sketch6.addGeometry(Part.LineSegment(App.Vector(7.17, -6.49, 0), App.Vector(5.97, -5.23, 0)), False)
sketch6.addGeometry(Part.ArcOfCircle(Part.Circle(App.Vector(0, 0, 0), App.Vector(0, 0, 1), 7.93), math.radians(-51.92), math.radians(-41.21)), False)
sketch6.addGeometry(Part.LineSegment(App.Vector(4.89, -6.25, 0), App.Vector(5.54, -6.92, 0)), False)
sketch6.addGeometry(Part.LineSegment(App.Vector(5.54, -6.92, 0), App.Vector(5.54, -12.32, 0)), False)
sketch6.addConstraint(Sketcher.Constraint("Coincident", 0, 2, 1, 1))
sketch6.addConstraint(Sketcher.Constraint("Coincident", 1, 2, 2, 1))
sketch6.addConstraint(Sketcher.Constraint("Coincident", 2, 2, 3, 1))
sketch6.addConstraint(Sketcher.Constraint("Coincident", 3, 2, 4, 1))
sketch6.addConstraint(Sketcher.Constraint("Coincident", 4, 2, 5, 1))
sketch6.addConstraint(Sketcher.Constraint("Coincident", 5, 2, 6, 1))
sketch6.addConstraint(Sketcher.Constraint("Coincident", 6, 2, 7, 1))
sketch6.addConstraint(Sketcher.Constraint("Coincident", 7, 2, 8, 1))
sketch6.addConstraint(Sketcher.Constraint("Coincident", 8, 2, 9, 2))
sketch6.addConstraint(Sketcher.Constraint("Coincident", 9, 1, 10, 1))
sketch6.addConstraint(Sketcher.Constraint("Coincident", 10, 2, 11, 1))
sketch6.addConstraint(Sketcher.Constraint("Coincident", 11, 2, 0, 1))
sketch6.addConstraint(Sketcher.Constraint("Horizontal", 0))
sketch6.addConstraint(Sketcher.Constraint("Vertical", 1))
sketch6.addConstraint(Sketcher.Constraint("Horizontal", 3))
sketch6.addConstraint(Sketcher.Constraint("Vertical", 5))
sketch6.addConstraint(Sketcher.Constraint("Horizontal", 6))
sketch6.addConstraint(Sketcher.Constraint("Vertical", 7))
sketch6.addConstraint(Sketcher.Constraint("Vertical", 11))
sketch6.addConstraint(Sketcher.Constraint("Coincident", 9, 3, -1, 1))
sketch6.addConstraint(Sketcher.Constraint("Parallel", 8, 10))
sketch6.addConstraint(Sketcher.Constraint("Horizontal", 1, 2, 4, 2))
sketch6.addConstraint(Sketcher.Constraint("Horizontal", 0, 2, 5, 2))
sketch6.addConstraint(Sketcher.Constraint("Equal", 0, 6))
sketch6.addConstraint(Sketcher.Constraint("Equal", 2, 4))
sketch6.addConstraint(Sketcher.Constraint("DistanceY", 2, 2, 0, 2, Q("6.1 mm")))
sketch6.addConstraint(Sketcher.Constraint("DistanceX", 0, 1, 0, 2, Q("0.395 mm")))
sketch6.addConstraint(Sketcher.Constraint("DistanceX", -1, 1, 0, 2, Q("5.93 mm")))
sketch6.addConstraint(Sketcher.Constraint("DistanceY", 0, 2, -1, 1, Q("12.32 mm")))
sketch6.addConstraint(Sketcher.Constraint("DistanceX", -1, 1, 4, 2, Q("6.77 mm")))
sketch6.addConstraint(Sketcher.Constraint("Radius", 9, Q("7.933883 mm")))
sketch6.addConstraint(Sketcher.Constraint("DistanceX", 3, 1, 3, 2, Q("0.320659 mm")))
sketch6.addConstraint(Sketcher.Constraint("DistanceY", 1, 2, 1, 1, Q("5.040739 mm")))
sketch6.addConstraint(Sketcher.Constraint("Distance", 8, Q("1.740569 mm")))
sketch6.addConstraint(Sketcher.Constraint("DistanceY", 7, 1, 7, 2, Q("5.828677 mm")))
sketch6.addConstraint(Sketcher.Constraint("DistanceY", 11, 2, 11, 1, Q("5.396755 mm")))
pad6 = doc.addObject("PartDesign::Pad", "Pad005")
body6.addObject(pad6)
pad6.Profile = sketch6
pad6.Type = "TwoLengths"
pad6.Length = 0.2
pad6.Length2 = 0.2
body7 = doc.addObject("PartDesign::Body", "Body006")

sketch7 = doc.addObject("Sketcher::SketchObject", "Sketch006")
body7.addObject(sketch7)
sketch7.AttachmentSupport = (doc.getObject("YZ_Plane006"), [""])
sketch7.MapMode = "FlatFace"
add_polygon(sketch7, [(-8.09, -0.36), (-9.16, -0.36), (-9.16, -4.82), (-6.5, -4.82), (-6.5, -5.27), (-3.33, -5.27), (-3.33, -10.02), (-2.13, -10.02), (-2.13, -14.61), (-2.73, -14.61), (-1.64, -18.11), (0, -18.11), (0, 2.79), (-6.93, 2.79), (-6.93, 2.2), (-8.09, 0.2)])
sketch7.addConstraint(Sketcher.Constraint("Horizontal", 0))
sketch7.addConstraint(Sketcher.Constraint("Vertical", 1))
sketch7.addConstraint(Sketcher.Constraint("Horizontal", 2))
sketch7.addConstraint(Sketcher.Constraint("Vertical", 3))
sketch7.addConstraint(Sketcher.Constraint("Horizontal", 4))
sketch7.addConstraint(Sketcher.Constraint("Vertical", 5))
sketch7.addConstraint(Sketcher.Constraint("Horizontal", 6))
sketch7.addConstraint(Sketcher.Constraint("Vertical", 7))
sketch7.addConstraint(Sketcher.Constraint("Horizontal", 8))
sketch7.addConstraint(Sketcher.Constraint("Horizontal", 10))
sketch7.addConstraint(Sketcher.Constraint("Vertical", 11))
sketch7.addConstraint(Sketcher.Constraint("Horizontal", 12))
sketch7.addConstraint(Sketcher.Constraint("Vertical", 13))
sketch7.addConstraint(Sketcher.Constraint("Vertical", 15))
sketch7.addConstraint(Sketcher.Constraint("PointOnObject", 10, 2, -2))
sketch7.addConstraint(Sketcher.Constraint("DistanceX", 12, 2, 12, 1, Q("6.93 mm")))
sketch7.addConstraint(Sketcher.Constraint("DistanceY", -1, 1, 14, 2, Q("0.2 mm")))
sketch7.addConstraint(Sketcher.Constraint("DistanceY", -1, 1, 11, 2, Q("2.795 mm")))
sketch7.addConstraint(Sketcher.Constraint("DistanceX", 0, 2, 0, 1, Q("1.06768 mm")))
sketch7.addConstraint(Sketcher.Constraint("DistanceX", 6, 1, 6, 2, Q("1.202242 mm")))
sketch7.addConstraint(Sketcher.Constraint("DistanceX", 8, 2, 8, 1, Q("0.601121 mm")))
sketch7.addConstraint(Sketcher.Constraint("DistanceY", 5, 2, 5, 1, Q("4.75432 mm")))
sketch7.addConstraint(Sketcher.Constraint("DistanceY", 7, 2, 7, 1, Q("4.590378 mm")))
sketch7.addConstraint(Sketcher.Constraint("DistanceX", 4, 2, -1, 1, Q("3.3343 mm")))
sketch7.addConstraint(Sketcher.Constraint("DistanceX", 14, 2, -1, 1, Q("8.091602 mm")))
sketch7.addConstraint(Sketcher.Constraint("DistanceX", 2, 1, 2, 2, Q("2.655434 mm")))
sketch7.addConstraint(Sketcher.Constraint("DistanceX", 10, 1, 10, 2, Q("1.640232 mm")))
sketch7.addConstraint(Sketcher.Constraint("DistanceY", 1, 2, 1, 1, Q("4.465577 mm")))
sketch7.addConstraint(Sketcher.Constraint("DistanceY", 3, 2, 3, 1, Q("0.444163 mm")))
sketch7.addConstraint(Sketcher.Constraint("DistanceY", 11, 1, 11, 2, Q("20.905065 mm")))
sketch7.addConstraint(Sketcher.Constraint("DistanceY", 13, 2, 13, 1, Q("0.594146 mm")))
sketch7.addConstraint(Sketcher.Constraint("DistanceY", 15, 2, 15, 1, Q("0.558196 mm")))
revolution = doc.addObject("PartDesign::Revolution", "Revolution")
body7.addObject(revolution)
revolution.Profile = sketch7
revolution.ReferenceAxis = (sketch7, ["V_Axis"])
revolution.Angle = 360

sketch8 = doc.addObject("Sketcher::SketchObject", "Sketch007")
body7.addObject(sketch8)
sketch8.AttachmentSupport = (doc.getObject("YZ_Plane006"), [""])
sketch8.MapMode = "FlatFace"
add_polygon(sketch8, [(0, -3.8), (0, -18.1), (0.5, -18.1), (0.5, -4.1)])
sketch8.addConstraint(Sketcher.Constraint("Vertical", 0))
sketch8.addConstraint(Sketcher.Constraint("Horizontal", 1))
sketch8.addConstraint(Sketcher.Constraint("Vertical", 2))
sketch8.addConstraint(Sketcher.Constraint("PointOnObject", 0, 2, -2))
sketch8.addConstraint(Sketcher.Constraint("Angle", 3, Q("149 deg")))
sketch8.addConstraint(Sketcher.Constraint("DistanceX", 1, 1, 1, 2, Q("0.5 mm")))
sketch8.addConstraint(Sketcher.Constraint("DistanceY", 2, 1, 2, 2, Q("13.97 mm")))
sketch8.addConstraint(Sketcher.Constraint("DistanceY", 0, 2, -1, 1, Q("18.110065 mm")))
groove = doc.addObject("PartDesign::Groove", "Groove")
body7.addObject(groove)
groove.Profile = sketch8
groove.ReferenceAxis = (sketch8, ["V_Axis"])
groove.Angle = 360

doc.recompute()
